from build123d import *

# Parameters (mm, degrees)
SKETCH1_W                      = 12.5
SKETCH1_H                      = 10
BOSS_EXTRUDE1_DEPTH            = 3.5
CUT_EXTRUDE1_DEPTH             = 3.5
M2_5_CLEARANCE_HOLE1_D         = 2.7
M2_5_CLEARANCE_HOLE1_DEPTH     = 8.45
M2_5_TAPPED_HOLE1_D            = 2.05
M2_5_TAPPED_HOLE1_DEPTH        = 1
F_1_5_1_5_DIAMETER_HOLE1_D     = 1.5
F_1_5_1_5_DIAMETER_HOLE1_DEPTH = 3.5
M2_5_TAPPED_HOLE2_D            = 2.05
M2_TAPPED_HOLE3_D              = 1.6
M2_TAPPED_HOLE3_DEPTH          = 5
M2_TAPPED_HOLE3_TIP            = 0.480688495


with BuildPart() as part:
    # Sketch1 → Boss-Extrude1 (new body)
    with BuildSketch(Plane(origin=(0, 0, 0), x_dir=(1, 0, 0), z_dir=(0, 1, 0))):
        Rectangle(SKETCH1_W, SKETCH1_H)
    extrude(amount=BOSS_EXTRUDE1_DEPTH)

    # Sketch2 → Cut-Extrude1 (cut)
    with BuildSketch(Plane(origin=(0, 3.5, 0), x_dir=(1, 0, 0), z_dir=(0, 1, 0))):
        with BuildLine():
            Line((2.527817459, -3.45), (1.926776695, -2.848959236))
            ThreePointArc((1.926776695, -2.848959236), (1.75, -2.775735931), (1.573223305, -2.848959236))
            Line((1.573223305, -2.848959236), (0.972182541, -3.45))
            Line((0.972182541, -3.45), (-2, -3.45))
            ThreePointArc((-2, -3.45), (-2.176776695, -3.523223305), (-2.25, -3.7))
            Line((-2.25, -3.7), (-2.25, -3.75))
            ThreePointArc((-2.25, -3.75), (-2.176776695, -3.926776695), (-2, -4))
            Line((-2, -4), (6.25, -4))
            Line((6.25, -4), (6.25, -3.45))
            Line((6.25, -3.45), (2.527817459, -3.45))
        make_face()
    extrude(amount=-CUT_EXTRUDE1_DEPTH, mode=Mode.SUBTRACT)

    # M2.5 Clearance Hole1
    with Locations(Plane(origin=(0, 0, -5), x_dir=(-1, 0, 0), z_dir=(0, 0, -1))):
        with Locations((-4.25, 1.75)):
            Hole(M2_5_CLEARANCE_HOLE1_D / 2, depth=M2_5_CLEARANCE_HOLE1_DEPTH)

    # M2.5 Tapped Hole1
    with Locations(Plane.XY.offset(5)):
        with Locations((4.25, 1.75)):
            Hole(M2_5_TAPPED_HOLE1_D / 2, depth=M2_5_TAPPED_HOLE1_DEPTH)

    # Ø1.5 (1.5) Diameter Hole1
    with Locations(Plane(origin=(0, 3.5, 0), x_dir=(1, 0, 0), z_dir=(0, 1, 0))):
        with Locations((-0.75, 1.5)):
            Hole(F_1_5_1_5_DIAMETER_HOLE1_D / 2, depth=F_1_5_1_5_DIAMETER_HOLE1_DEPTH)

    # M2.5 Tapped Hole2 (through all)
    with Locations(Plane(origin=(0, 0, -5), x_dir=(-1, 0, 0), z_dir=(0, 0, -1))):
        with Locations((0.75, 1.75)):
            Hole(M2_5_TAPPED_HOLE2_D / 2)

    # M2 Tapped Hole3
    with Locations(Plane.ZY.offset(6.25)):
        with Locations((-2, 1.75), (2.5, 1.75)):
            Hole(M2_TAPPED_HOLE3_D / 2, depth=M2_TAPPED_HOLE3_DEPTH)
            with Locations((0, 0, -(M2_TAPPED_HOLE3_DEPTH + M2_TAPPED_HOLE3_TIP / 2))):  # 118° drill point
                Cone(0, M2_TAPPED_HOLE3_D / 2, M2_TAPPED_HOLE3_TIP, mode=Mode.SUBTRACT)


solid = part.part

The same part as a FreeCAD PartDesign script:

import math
import FreeCAD as App
import Part
import Sketcher
from FreeCAD import Vector


def add_polygon(sketch, points):
    """Adds a closed chain of lines whose ends are joined by coincident constraints."""
    first, n = sketch.GeometryCount, len(points)
    for a, b in zip(points, points[1:] + points[:1]):
        sketch.addGeometry(Part.LineSegment(App.Vector(*a, 0), App.Vector(*b, 0)), False)
    for i in range(n):
        sketch.addConstraint(Sketcher.Constraint("Coincident", first + i, 2, first + (i + 1) % n, 1))

doc = App.newDocument("Part")
body = doc.addObject("PartDesign::Body", "Body")

sketch1 = body.newObject("Sketcher::SketchObject", "Sketch")
sketch1.AttachmentSupport = (doc.getObject("XZ_Plane"), [""])
sketch1.MapMode = "FlatFace"
add_polygon(sketch1, [(-6, -5), (-6, 5), (6, 5), (6, -5)])
sketch1.addConstraint([
    Sketcher.Constraint("Vertical", 0),
    Sketcher.Constraint("Horizontal", 1),
    Sketcher.Constraint("Vertical", 2),
    Sketcher.Constraint("Horizontal", 3),
    Sketcher.Constraint("Symmetric", 0, 2, 2, 2, -1, 1),
    Sketcher.Constraint("DistanceY", 0, 1, 0, 2, 10.0),
    Sketcher.Constraint("DistanceX", 1, 1, 1, 2, 12.5),
])
pad1 = body.newObject("PartDesign::Pad", "Pad")
pad1.Profile = sketch1
pad1.Length = 3.5
pad1.Reversed = True

sketch2 = body.newObject("Sketcher::SketchObject", "Sketch001")
sketch2.AttachmentSupport = (doc.getObject("XZ_Plane"), [""])
sketch2.MapMode = "FlatFace"
sketch2.AttachmentOffset = App.Placement(Vector(0, 0, -3.5), App.Rotation())
sketch2.addGeometry([
    Part.LineSegment(Vector(2.528, 3.45, 0), Vector(1.927, 2.849, 0)),
    Part.ArcOfCircle(Part.Circle(Vector(1.75, 3.026, 0), Vector(0, 0, 1), 0.25), math.radians(-135), math.radians(-45)),
    Part.LineSegment(Vector(1.573, 2.849, 0), Vector(0.972, 3.45, 0)),
    Part.LineSegment(Vector(0.972, 3.45, 0), Vector(-2, 3.45, 0)),
    Part.ArcOfCircle(Part.Circle(Vector(-2, 3.7, 0), Vector(0, 0, 1), 0.25), math.radians(-180), math.radians(-90)),
    Part.LineSegment(Vector(-2.25, 3.7, 0), Vector(-2.25, 3.75, 0)),
    Part.ArcOfCircle(Part.Circle(Vector(-2, 3.75, 0), Vector(0, 0, 1), 0.25), math.radians(90), math.radians(180)),
    Part.LineSegment(Vector(-2, 4, 0), Vector(6.25, 4, 0)),
    Part.LineSegment(Vector(6.25, 4, 0), Vector(6.25, 3.45, 0)),
    Part.LineSegment(Vector(6.25, 3.45, 0), Vector(2.528, 3.45, 0)),
], False)
sketch2.addConstraint([
    Sketcher.Constraint("Tangent", 0, 2, 1, 2),
    Sketcher.Constraint("Tangent", 1, 1, 2, 1),
    Sketcher.Constraint("Coincident", 2, 2, 3, 1),
    Sketcher.Constraint("Tangent", 3, 2, 4, 2),
    Sketcher.Constraint("Tangent", 4, 1, 5, 1),
    Sketcher.Constraint("Tangent", 5, 2, 6, 2),
    Sketcher.Constraint("Tangent", 6, 1, 7, 1),
    Sketcher.Constraint("Coincident", 7, 2, 8, 1),
    Sketcher.Constraint("Coincident", 8, 2, 9, 1),
    Sketcher.Constraint("Coincident", 9, 2, 0, 1),
    Sketcher.Constraint("Horizontal", 3),
    Sketcher.Constraint("Vertical", 5),
    Sketcher.Constraint("Horizontal", 7),
    Sketcher.Constraint("Vertical", 8),
    Sketcher.Constraint("Horizontal", 9),
    Sketcher.Constraint("Equal", 1, 4),
    Sketcher.Constraint("Equal", 4, 6),
    Sketcher.Constraint("Perpendicular", 0, 2),
    Sketcher.Constraint("Horizontal", 0, 2, 1, 1),
    Sketcher.Constraint("Horizontal", 3, 2, 8, 2),
    Sketcher.Constraint("Radius", 1, 0.25),
    Sketcher.Constraint("DistanceX", 4, 3, -1, 1, 2.0),
    Sketcher.Constraint("DistanceY", -1, 1, 6, 1, 4.0),
    Sketcher.Constraint("DistanceX", 7, 1, 7, 2, 8.25),
    Sketcher.Constraint("DistanceY", 5, 1, 5, 2, 0.05),
    Sketcher.Constraint("DistanceX", 1, 3, 7, 2, 4.5),
    Sketcher.Constraint("Distance", 0, 0.85),
])
pocket1 = body.newObject("PartDesign::Pocket", "Pocket")
pocket1.Profile = sketch2
pocket1.Length = 3.5
pocket1.Reversed = True

sketch3 = body.newObject("Sketcher::SketchObject", "Sketch002")
sketch3.AttachmentSupport = (doc.getObject("XY_Plane"), [""])
sketch3.MapMode = "FlatFace"
sketch3.AttachmentOffset = App.Placement(Vector(0, 0, -5), App.Rotation())
sketch3.addGeometry(Part.Circle(Vector(4.2, 1.8, 0), Vector(0, 0, 1), 1.4), False)
sketch3.addConstraint([
    Sketcher.Constraint("Diameter", 0, 2.7),
    Sketcher.Constraint("DistanceX", -1, 1, 0, 3, 4.25),
    Sketcher.Constraint("DistanceY", -1, 1, 0, 3, 1.75),
])
doc.recompute()
hole = body.newObject("PartDesign::Hole", "Hole")
hole.Profile = sketch3
hole.ThreadType = "None"
hole.Diameter = 2.7
hole.DepthType = "Dimension"
hole.Depth = 8.45
hole.DrillPoint = "Flat"
hole.Reversed = True

sketch4 = body.newObject("Sketcher::SketchObject", "Sketch003")
sketch4.AttachmentSupport = (doc.getObject("XY_Plane"), [""])
sketch4.MapMode = "FlatFace"
sketch4.AttachmentOffset = App.Placement(Vector(0, 0, 5), App.Rotation())
sketch4.addGeometry(Part.Circle(Vector(4.2, 1.8, 0), Vector(0, 0, 1), 1), False)
sketch4.addConstraint([
    Sketcher.Constraint("Diameter", 0, 2.05),
    Sketcher.Constraint("DistanceX", -1, 1, 0, 3, 4.25),
    Sketcher.Constraint("DistanceY", -1, 1, 0, 3, 1.75),
])
doc.recompute()
hole2 = body.newObject("PartDesign::Hole", "Hole001")
hole2.Profile = sketch4
hole2.ThreadType = "None"
hole2.Diameter = 2.05
hole2.DepthType = "Dimension"
hole2.Depth = 1
hole2.DrillPoint = "Flat"

sketch5 = body.newObject("Sketcher::SketchObject", "Sketch004")
sketch5.AttachmentSupport = (doc.getObject("XZ_Plane"), [""])
sketch5.MapMode = "FlatFace"
sketch5.AttachmentOffset = App.Placement(Vector(0, 0, -3.5), App.Rotation())
sketch5.addGeometry(Part.Circle(Vector(-0.8, -1.5, 0), Vector(0, 0, 1), 0.8), False)
sketch5.addConstraint([
    Sketcher.Constraint("Diameter", 0, 1.5),
    Sketcher.Constraint("DistanceY", 0, 3, -1, 1, 1.5),
    Sketcher.Constraint("DistanceX", 0, 3, -1, 1, 0.75),
])
doc.recompute()
hole3 = body.newObject("PartDesign::Hole", "Hole002")
hole3.Profile = sketch5
hole3.ThreadType = "None"
hole3.Diameter = 1.5
hole3.DepthType = "Dimension"
hole3.Depth = 3.5
hole3.DrillPoint = "Flat"
hole3.Reversed = True

sketch6 = body.newObject("Sketcher::SketchObject", "Sketch005")
sketch6.AttachmentSupport = (doc.getObject("XY_Plane"), [""])
sketch6.MapMode = "FlatFace"
sketch6.AttachmentOffset = App.Placement(Vector(0, 0, -5), App.Rotation())
sketch6.addGeometry(Part.Circle(Vector(-0.8, 1.8, 0), Vector(0, 0, 1), 1), False)
sketch6.addConstraint([
    Sketcher.Constraint("Diameter", 0, 2.05),
    Sketcher.Constraint("DistanceX", 0, 3, -1, 1, 0.75),
    Sketcher.Constraint("DistanceY", -1, 1, 0, 3, 1.75),
])
doc.recompute()
hole4 = body.newObject("PartDesign::Hole", "Hole003")
hole4.Profile = sketch6
hole4.ThreadType = "None"
hole4.Diameter = 2.05
hole4.DepthType = "ThroughAll"
hole4.Reversed = True

sketch7 = body.newObject("Sketcher::SketchObject", "Sketch006")
sketch7.AttachmentSupport = (doc.getObject("YZ_Plane"), [""])
sketch7.MapMode = "FlatFace"
sketch7.AttachmentOffset = App.Placement(Vector(0, 0, -6.25), App.Rotation())
sketch7.addGeometry([
    Part.Circle(Vector(1.8, -2, 0), Vector(0, 0, 1), 0.8),
    Part.Circle(Vector(1.8, 2.5, 0), Vector(0, 0, 1), 0.8),
], False)
sketch7.addConstraint([
    Sketcher.Constraint("Equal", 0, 1),
    Sketcher.Constraint("Vertical", 0, 3, 1, 3),
    Sketcher.Constraint("Diameter", 0, 1.6),
    Sketcher.Constraint("DistanceY", 0, 3, -1, 1, 2.0),
    Sketcher.Constraint("DistanceY", -1, 1, 1, 3, 2.5),
    Sketcher.Constraint("DistanceX", -1, 1, 0, 3, 1.75),
])
doc.recompute()
hole5 = body.newObject("PartDesign::Hole", "Hole004")
hole5.Profile = sketch7
hole5.ThreadType = "None"
hole5.Diameter = 1.6
hole5.DepthType = "Dimension"
hole5.Depth = 5
hole5.DrillPoint = "Angled"
hole5.DrillPointAngle = 118
hole5.Reversed = True

doc.recompute()
